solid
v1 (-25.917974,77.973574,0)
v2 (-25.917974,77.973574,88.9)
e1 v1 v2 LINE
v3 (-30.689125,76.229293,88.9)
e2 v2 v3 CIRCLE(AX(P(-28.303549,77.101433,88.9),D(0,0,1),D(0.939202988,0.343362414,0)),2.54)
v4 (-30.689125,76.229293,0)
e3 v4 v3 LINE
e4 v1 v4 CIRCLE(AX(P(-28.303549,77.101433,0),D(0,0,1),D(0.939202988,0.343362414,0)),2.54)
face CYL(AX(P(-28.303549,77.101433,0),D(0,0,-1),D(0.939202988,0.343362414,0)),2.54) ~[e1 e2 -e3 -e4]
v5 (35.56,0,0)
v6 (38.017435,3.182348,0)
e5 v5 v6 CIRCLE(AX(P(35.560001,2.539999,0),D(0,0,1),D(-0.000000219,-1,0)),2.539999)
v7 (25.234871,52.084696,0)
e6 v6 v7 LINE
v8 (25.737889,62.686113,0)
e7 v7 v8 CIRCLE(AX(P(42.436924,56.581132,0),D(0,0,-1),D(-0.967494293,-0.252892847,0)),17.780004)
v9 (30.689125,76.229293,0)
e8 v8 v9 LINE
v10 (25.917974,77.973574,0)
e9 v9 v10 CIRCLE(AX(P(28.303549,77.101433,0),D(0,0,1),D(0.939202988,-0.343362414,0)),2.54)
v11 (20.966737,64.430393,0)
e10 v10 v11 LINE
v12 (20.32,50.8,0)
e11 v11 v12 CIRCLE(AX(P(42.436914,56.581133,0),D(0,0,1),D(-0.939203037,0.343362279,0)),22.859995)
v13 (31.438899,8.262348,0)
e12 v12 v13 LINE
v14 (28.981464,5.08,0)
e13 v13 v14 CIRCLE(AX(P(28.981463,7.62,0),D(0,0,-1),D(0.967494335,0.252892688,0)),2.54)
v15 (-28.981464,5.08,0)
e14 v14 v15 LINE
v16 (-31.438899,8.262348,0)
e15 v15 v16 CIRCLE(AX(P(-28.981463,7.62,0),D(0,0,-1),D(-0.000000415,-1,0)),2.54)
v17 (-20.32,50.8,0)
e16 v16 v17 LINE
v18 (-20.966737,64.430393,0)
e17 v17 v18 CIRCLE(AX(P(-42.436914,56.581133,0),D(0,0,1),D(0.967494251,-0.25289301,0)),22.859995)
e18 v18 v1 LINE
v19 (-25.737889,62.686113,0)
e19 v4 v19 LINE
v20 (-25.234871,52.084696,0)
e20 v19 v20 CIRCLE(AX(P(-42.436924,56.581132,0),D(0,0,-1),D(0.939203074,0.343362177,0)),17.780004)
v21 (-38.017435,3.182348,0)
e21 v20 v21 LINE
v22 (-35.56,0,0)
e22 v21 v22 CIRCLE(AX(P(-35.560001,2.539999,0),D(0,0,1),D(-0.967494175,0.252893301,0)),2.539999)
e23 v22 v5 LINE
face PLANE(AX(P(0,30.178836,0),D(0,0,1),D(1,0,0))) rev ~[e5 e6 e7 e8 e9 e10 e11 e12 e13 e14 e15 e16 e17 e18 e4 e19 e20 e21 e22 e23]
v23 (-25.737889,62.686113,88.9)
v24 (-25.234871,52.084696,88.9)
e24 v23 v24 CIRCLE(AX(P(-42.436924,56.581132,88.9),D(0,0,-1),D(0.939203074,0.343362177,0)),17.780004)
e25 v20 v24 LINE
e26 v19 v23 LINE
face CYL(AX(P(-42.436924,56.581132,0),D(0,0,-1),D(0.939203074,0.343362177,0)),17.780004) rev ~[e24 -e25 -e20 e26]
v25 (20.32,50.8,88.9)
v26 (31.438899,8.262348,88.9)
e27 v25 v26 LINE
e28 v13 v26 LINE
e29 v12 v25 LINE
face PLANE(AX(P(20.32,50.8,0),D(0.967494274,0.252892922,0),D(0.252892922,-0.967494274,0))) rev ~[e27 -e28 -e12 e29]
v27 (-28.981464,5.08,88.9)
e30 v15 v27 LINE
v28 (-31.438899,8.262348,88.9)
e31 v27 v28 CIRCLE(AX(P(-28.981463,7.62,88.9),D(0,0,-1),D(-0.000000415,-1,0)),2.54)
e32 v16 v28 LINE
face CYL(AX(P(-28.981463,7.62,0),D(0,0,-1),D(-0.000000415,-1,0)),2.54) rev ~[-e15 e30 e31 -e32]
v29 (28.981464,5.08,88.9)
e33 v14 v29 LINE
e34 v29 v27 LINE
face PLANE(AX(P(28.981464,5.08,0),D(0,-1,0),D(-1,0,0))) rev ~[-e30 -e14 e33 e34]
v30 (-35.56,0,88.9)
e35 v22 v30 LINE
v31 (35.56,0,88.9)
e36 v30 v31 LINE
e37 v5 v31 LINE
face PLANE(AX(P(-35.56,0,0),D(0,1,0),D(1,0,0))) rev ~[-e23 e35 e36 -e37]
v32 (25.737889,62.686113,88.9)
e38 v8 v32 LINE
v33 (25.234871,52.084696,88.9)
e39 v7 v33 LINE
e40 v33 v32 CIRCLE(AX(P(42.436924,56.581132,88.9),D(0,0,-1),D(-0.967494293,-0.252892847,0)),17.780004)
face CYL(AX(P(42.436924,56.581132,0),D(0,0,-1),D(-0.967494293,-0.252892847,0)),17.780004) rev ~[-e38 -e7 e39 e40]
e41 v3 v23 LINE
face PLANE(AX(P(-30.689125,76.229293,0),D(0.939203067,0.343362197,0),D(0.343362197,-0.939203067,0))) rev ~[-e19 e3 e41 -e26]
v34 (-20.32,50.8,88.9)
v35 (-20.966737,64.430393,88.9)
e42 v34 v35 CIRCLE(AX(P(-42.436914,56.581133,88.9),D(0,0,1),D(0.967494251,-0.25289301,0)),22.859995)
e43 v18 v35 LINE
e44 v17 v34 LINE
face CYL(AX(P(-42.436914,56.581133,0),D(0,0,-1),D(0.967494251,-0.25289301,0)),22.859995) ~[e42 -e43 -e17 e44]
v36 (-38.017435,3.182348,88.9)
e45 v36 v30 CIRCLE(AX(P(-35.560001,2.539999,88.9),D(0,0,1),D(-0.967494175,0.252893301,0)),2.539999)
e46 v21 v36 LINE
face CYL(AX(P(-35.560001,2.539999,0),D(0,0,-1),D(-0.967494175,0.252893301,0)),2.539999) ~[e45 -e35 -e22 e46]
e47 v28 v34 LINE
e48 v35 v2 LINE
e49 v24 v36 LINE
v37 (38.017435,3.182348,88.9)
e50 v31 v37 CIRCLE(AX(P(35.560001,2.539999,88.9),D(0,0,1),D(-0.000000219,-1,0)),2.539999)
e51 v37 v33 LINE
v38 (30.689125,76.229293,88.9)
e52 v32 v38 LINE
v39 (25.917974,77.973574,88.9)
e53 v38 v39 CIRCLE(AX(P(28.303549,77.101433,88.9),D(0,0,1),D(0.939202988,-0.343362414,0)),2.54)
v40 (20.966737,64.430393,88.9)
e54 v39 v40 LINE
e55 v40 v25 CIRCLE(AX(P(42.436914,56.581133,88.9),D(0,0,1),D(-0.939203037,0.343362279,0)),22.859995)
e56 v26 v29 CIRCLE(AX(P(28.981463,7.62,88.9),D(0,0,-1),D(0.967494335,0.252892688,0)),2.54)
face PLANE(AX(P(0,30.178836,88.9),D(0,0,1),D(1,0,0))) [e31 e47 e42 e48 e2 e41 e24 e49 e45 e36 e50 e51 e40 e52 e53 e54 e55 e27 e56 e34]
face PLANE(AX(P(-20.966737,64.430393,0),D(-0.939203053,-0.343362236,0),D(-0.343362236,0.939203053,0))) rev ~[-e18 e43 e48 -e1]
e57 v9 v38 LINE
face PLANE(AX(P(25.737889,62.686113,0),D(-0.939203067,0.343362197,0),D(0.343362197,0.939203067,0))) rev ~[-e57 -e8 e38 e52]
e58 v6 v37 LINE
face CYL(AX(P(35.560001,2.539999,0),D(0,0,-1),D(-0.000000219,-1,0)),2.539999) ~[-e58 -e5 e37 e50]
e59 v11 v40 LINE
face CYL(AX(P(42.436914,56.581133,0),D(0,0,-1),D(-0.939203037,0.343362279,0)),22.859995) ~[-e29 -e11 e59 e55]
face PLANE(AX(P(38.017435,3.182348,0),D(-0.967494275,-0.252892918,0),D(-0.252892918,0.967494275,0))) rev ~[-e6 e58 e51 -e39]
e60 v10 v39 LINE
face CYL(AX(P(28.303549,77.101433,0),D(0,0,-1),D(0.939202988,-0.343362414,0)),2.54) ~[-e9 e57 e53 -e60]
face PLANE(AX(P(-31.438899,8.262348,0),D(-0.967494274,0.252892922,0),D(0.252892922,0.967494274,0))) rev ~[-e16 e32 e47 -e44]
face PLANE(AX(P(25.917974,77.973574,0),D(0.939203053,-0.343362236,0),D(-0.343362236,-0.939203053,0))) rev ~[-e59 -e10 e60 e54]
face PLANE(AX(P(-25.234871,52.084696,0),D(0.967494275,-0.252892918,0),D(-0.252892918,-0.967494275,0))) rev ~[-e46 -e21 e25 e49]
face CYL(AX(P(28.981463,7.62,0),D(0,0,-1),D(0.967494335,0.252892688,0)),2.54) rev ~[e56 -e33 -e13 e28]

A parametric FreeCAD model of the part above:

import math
import FreeCAD as App
import Part
import Sketcher
from FreeCAD import Vector
Q = App.Units.Quantity

doc = App.newDocument("Part")
body = doc.addObject("PartDesign::Body", "Body")

# Sketch on XY plane
sketch1 = body.newObject("Sketcher::SketchObject", "Sketch")
sketch1.AttachmentSupport = (doc.getObject("XY_Plane"), [""])
sketch1.MapMode = "FlatFace"
sketch1.addGeometry(Part.LineSegment(Vector(-35.6, 0, 0), Vector(35.6, 0, 0)), False)
sketch1.addGeometry(Part.ArcOfCircle(Part.Circle(Vector(35.6, 2.5, 0), Vector(0, 0, 1), 2.5), math.radians(-90), math.radians(15)), False)
sketch1.addGeometry(Part.LineSegment(Vector(38, 3.2, 0), Vector(25.2, 52.1, 0)), False)
sketch1.addGeometry(Part.ArcOfCircle(Part.Circle(Vector(42.4, 56.6, 0), Vector(0, 0, 1), 17.8), math.radians(160), math.radians(195)), False)
sketch1.addGeometry(Part.LineSegment(Vector(25.7, 62.7, 0), Vector(30.7, 76.2, 0)), False)
sketch1.addGeometry(Part.ArcOfCircle(Part.Circle(Vector(28.3, 77.1, 0), Vector(0, 0, 1), 2.5), math.radians(-20), math.radians(160)), False)
sketch1.addGeometry(Part.LineSegment(Vector(25.9, 78, 0), Vector(21, 64.4, 0)), False)
sketch1.addGeometry(Part.ArcOfCircle(Part.Circle(Vector(42.4, 56.6, 0), Vector(0, 0, 1), 22.9), math.radians(160), math.radians(195)), False)
sketch1.addGeometry(Part.LineSegment(Vector(20.3, 50.8, 0), Vector(31.4, 8.3, 0)), False)
sketch1.addGeometry(Part.ArcOfCircle(Part.Circle(Vector(29, 7.6, 0), Vector(0, 0, 1), 2.5), math.radians(-90), math.radians(15)), False)
sketch1.addGeometry(Part.LineSegment(Vector(29, 5.1, 0), Vector(-29, 5.1, 0)), False)
sketch1.addGeometry(Part.ArcOfCircle(Part.Circle(Vector(-29, 7.6, 0), Vector(0, 0, 1), 2.5), math.radians(165), math.radians(270)), False)
sketch1.addGeometry(Part.LineSegment(Vector(-31.4, 8.3, 0), Vector(-20.3, 50.8, 0)), False)
sketch1.addGeometry(Part.ArcOfCircle(Part.Circle(Vector(-42.4, 56.6, 0), Vector(0, 0, 1), 22.9), math.radians(-15), math.radians(20)), False)
sketch1.addGeometry(Part.LineSegment(Vector(-21, 64.4, 0), Vector(-25.9, 78, 0)), False)
sketch1.addGeometry(Part.ArcOfCircle(Part.Circle(Vector(-28.3, 77.1, 0), Vector(0, 0, 1), 2.5), math.radians(20), math.radians(200)), False)
sketch1.addGeometry(Part.LineSegment(Vector(-30.7, 76.2, 0), Vector(-25.7, 62.7, 0)), False)
sketch1.addGeometry(Part.ArcOfCircle(Part.Circle(Vector(-42.4, 56.6, 0), Vector(0, 0, 1), 17.8), math.radians(-15), math.radians(20)), False)
sketch1.addGeometry(Part.LineSegment(Vector(-25.2, 52.1, 0), Vector(-38, 3.2, 0)), False)
sketch1.addGeometry(Part.ArcOfCircle(Part.Circle(Vector(-35.6, 2.5, 0), Vector(0, 0, 1), 2.5), math.radians(165), math.radians(270)), False)
sketch1.addConstraint(Sketcher.Constraint("Tangent", 0, 2, 1, 1))
sketch1.addConstraint(Sketcher.Constraint("Tangent", 1, 2, 2, 1))
sketch1.addConstraint(Sketcher.Constraint("Tangent", 2, 2, 3, 2))
sketch1.addConstraint(Sketcher.Constraint("Tangent", 3, 1, 4, 1))
sketch1.addConstraint(Sketcher.Constraint("Tangent", 4, 2, 5, 1))
sketch1.addConstraint(Sketcher.Constraint("Tangent", 5, 2, 6, 1))
sketch1.addConstraint(Sketcher.Constraint("Tangent", 6, 2, 7, 1))
sketch1.addConstraint(Sketcher.Constraint("Tangent", 7, 2, 8, 1))
sketch1.addConstraint(Sketcher.Constraint("Tangent", 8, 2, 9, 2))
sketch1.addConstraint(Sketcher.Constraint("Tangent", 9, 1, 10, 1))
sketch1.addConstraint(Sketcher.Constraint("Tangent", 10, 2, 11, 2))
sketch1.addConstraint(Sketcher.Constraint("Tangent", 11, 1, 12, 1))
sketch1.addConstraint(Sketcher.Constraint("Tangent", 12, 2, 13, 1))
sketch1.addConstraint(Sketcher.Constraint("Tangent", 13, 2, 14, 1))
sketch1.addConstraint(Sketcher.Constraint("Tangent", 14, 2, 15, 1))
sketch1.addConstraint(Sketcher.Constraint("Tangent", 15, 2, 16, 1))
sketch1.addConstraint(Sketcher.Constraint("Tangent", 16, 2, 17, 2))
sketch1.addConstraint(Sketcher.Constraint("Tangent", 17, 1, 18, 1))
sketch1.addConstraint(Sketcher.Constraint("Tangent", 18, 2, 19, 1))
sketch1.addConstraint(Sketcher.Constraint("Tangent", 19, 2, 0, 1))
sketch1.addConstraint(Sketcher.Constraint("Horizontal", 0))
sketch1.addConstraint(Sketcher.Constraint("Horizontal", 10))
sketch1.addConstraint(Sketcher.Constraint("Equal", 1, 5))
sketch1.addConstraint(Sketcher.Constraint("Equal", 5, 9))
sketch1.addConstraint(Sketcher.Constraint("Equal", 9, 11))
sketch1.addConstraint(Sketcher.Constraint("Equal", 7, 13))
sketch1.addConstraint(Sketcher.Constraint("Equal", 11, 15))
sketch1.addConstraint(Sketcher.Constraint("Equal", 3, 17))
sketch1.addConstraint(Sketcher.Constraint("Equal", 15, 19))
sketch1.addConstraint(Sketcher.Constraint("Symmetric", 0, 2, 19, 2, -1, 1))
sketch1.addConstraint(Sketcher.Constraint("Symmetric", 7, 3, 13, 3, -2))
sketch1.addConstraint(Sketcher.Constraint("Symmetric", 5, 3, 15, 3, -2))
sketch1.addConstraint(Sketcher.Constraint("Symmetric", 3, 3, 17, 3, -2))
sketch1.addConstraint(Sketcher.Constraint("Parallel", 4, 6))
sketch1.addConstraint(Sketcher.Constraint("Parallel", 2, 8))
sketch1.addConstraint(Sketcher.Constraint("Parallel", 12, 18))
sketch1.addConstraint(Sketcher.Constraint("Horizontal", 3, 3, 7, 3))
sketch1.addConstraint(Sketcher.Constraint("Equal", 4, 6))
sketch1.addConstraint(Sketcher.Constraint("Radius", 1, Q("0.1 in")))
sketch1.addConstraint(Sketcher.Constraint("Radius", 3, Q("0.7000002 in")))
sketch1.addConstraint(Sketcher.Constraint("DistanceX", 0, 1, 0, 2, Q("2.8 in")))
sketch1.addConstraint(Sketcher.Constraint("DistanceY", -1, 1, 7, 2, Q("2 in")))
sketch1.addConstraint(Sketcher.Constraint("DistanceY", -1, 1, 9, 3, Q("0.3 in")))
sketch1.addConstraint(Sketcher.Constraint("DistanceX", -1, 1, 7, 2, Q("0.8 in")))
sketch1.addConstraint(Sketcher.Constraint("DistanceY", 3, 3, 5, 3, Q("20.520302 mm")))
sketch1.addConstraint(Sketcher.Constraint("DistanceX", 15, 3, 5, 3, Q("56.607099 mm")))
pad1 = body.newObject("PartDesign::Pad", "Pad")
pad1.Profile = sketch1
pad1.Length = Q("3.5 in")

doc.recompute()
